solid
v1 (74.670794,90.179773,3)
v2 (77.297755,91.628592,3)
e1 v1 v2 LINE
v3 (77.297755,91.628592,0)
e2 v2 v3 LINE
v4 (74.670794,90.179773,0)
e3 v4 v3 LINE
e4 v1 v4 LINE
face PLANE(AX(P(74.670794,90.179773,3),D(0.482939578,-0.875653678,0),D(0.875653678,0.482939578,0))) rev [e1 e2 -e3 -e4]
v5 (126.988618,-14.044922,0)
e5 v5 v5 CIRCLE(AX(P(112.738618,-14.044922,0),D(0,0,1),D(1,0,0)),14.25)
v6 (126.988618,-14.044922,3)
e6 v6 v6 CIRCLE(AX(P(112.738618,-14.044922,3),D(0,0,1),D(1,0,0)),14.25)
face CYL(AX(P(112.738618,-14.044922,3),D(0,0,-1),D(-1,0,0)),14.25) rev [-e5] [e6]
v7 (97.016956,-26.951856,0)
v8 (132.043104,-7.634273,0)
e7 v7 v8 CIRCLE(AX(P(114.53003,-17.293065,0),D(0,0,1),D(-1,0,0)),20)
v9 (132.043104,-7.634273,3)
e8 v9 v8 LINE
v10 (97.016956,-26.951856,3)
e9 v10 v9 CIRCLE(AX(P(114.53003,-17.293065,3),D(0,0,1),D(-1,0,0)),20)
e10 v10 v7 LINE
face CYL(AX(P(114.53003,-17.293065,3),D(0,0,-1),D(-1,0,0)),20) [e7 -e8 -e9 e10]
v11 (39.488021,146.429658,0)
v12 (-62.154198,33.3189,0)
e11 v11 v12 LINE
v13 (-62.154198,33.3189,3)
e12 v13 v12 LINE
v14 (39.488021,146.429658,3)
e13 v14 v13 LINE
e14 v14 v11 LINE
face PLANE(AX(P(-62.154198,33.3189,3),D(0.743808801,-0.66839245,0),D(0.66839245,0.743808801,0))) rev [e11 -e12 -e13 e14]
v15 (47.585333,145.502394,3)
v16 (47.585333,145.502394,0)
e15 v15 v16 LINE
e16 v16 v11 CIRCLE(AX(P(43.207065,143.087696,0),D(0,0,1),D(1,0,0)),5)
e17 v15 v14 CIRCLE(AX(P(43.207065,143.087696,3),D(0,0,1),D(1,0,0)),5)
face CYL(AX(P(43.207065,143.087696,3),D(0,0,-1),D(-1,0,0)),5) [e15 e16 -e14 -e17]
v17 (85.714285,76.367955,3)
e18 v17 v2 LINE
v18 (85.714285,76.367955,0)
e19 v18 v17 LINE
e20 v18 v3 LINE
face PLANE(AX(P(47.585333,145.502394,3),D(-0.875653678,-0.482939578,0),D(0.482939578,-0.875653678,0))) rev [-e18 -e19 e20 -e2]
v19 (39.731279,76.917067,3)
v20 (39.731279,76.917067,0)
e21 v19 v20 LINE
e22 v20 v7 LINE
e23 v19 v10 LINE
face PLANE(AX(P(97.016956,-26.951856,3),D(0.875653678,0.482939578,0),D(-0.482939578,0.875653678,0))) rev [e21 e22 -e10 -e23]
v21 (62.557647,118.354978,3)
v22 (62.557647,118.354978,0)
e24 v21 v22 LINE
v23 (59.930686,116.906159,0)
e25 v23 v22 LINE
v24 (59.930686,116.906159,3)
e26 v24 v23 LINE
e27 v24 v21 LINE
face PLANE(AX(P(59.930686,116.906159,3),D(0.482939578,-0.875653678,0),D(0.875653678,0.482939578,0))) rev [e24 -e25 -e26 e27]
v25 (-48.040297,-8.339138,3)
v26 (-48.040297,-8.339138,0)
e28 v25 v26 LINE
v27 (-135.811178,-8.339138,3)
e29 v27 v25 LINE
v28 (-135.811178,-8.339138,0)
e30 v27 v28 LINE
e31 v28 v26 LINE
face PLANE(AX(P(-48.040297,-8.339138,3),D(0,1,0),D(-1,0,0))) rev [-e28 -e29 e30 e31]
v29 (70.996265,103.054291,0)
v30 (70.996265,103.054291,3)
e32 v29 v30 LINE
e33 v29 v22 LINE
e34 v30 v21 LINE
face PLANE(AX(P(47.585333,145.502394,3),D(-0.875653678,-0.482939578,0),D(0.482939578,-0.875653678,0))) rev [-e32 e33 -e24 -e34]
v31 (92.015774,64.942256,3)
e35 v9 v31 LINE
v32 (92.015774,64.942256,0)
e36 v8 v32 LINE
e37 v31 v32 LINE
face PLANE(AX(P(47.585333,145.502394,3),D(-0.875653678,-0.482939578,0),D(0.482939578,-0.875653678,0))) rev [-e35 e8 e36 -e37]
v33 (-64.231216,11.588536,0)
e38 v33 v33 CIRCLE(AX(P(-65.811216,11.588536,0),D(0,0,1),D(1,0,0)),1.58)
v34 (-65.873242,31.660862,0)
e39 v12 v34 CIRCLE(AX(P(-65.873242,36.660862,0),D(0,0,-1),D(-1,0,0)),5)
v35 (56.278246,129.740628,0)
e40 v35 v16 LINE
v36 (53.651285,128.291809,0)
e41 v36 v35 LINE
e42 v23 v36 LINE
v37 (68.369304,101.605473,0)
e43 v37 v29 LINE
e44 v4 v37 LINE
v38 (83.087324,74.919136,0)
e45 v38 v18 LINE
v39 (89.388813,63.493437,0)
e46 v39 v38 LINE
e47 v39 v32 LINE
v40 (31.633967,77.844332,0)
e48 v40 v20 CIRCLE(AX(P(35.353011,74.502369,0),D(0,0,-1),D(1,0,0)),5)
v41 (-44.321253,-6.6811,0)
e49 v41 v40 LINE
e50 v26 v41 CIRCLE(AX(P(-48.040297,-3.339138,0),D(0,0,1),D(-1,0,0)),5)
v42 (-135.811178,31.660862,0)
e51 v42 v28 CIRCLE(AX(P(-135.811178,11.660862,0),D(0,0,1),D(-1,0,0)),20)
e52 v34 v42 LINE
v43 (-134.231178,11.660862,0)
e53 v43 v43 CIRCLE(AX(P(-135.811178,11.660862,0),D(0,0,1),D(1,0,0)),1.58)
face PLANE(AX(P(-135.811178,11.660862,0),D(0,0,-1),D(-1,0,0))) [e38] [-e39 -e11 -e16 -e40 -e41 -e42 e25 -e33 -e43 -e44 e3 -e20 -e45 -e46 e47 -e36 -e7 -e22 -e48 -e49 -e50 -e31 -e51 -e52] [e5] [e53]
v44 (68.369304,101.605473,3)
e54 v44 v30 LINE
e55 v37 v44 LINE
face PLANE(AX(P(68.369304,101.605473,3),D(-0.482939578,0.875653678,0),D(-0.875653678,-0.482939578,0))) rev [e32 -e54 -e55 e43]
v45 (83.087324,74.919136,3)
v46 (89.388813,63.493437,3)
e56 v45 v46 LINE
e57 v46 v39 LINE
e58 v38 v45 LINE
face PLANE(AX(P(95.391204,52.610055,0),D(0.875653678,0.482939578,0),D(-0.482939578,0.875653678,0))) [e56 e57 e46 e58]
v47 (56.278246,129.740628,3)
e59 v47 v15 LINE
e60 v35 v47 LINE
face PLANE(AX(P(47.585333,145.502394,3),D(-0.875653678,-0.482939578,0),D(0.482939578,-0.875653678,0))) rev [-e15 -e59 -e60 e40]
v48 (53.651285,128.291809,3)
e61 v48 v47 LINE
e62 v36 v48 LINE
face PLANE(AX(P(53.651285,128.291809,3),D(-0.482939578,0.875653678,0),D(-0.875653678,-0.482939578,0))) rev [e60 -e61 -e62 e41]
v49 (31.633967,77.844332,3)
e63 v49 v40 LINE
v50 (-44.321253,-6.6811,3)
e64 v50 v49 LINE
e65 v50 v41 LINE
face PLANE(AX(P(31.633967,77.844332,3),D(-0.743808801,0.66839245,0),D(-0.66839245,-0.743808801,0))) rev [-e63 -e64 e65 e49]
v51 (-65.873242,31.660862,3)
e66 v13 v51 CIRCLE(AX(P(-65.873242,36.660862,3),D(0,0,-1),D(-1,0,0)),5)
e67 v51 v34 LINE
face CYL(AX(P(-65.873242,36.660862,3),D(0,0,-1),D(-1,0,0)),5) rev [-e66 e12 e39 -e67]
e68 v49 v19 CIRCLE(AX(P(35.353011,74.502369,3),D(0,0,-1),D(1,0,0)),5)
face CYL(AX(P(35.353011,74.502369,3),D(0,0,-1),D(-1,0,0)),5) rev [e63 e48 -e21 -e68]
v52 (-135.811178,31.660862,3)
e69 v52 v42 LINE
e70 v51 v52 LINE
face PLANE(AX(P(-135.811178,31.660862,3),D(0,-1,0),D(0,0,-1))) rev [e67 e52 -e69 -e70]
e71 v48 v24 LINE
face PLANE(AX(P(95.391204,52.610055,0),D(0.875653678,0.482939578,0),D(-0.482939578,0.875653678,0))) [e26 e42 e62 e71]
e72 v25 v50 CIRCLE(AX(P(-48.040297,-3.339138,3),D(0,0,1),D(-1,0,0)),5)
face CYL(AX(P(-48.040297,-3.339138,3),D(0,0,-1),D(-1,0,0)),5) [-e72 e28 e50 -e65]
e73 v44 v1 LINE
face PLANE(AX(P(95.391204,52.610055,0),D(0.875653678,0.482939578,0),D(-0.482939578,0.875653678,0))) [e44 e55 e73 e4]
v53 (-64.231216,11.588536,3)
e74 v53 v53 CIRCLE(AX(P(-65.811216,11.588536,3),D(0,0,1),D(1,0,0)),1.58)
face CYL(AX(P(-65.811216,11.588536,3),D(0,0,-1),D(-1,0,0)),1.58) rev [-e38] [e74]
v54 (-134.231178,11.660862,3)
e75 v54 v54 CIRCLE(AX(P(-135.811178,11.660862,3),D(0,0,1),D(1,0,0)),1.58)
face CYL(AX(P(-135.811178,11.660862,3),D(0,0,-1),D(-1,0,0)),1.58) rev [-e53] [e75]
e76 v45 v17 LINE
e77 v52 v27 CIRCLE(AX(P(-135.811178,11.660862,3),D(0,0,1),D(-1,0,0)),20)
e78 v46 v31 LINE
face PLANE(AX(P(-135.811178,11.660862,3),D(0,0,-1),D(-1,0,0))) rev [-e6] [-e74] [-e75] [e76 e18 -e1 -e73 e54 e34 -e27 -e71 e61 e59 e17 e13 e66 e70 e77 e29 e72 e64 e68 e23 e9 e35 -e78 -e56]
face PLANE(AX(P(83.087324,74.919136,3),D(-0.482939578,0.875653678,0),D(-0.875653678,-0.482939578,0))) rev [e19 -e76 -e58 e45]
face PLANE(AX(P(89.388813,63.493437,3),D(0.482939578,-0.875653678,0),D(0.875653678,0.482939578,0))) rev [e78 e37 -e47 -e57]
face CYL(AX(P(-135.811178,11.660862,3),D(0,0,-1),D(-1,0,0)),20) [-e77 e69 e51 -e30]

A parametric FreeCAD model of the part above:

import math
import FreeCAD as App
import Part
import Sketcher
from FreeCAD import Vector
Q = App.Units.Quantity

doc = App.newDocument("Part")
params = doc.addObject("Spreadsheet::Sheet", "Params")
for row, (alias, value) in enumerate([
    ("sketch1_radius", "20 mm"),
    ("sketch1_radius2", "5 mm"),
    ("sketch1_diameter", "28.5 mm"),
    ("sketch1_diameter2", "3.16 mm"),
    ("pad1_length", "3 mm"),
    ("sketch2_width", "3 mm"),
    ("pocket1_length", "3 mm"),
], start=1):
    params.set(f"A{row}", alias)
    params.set(f"B{row}", "=" + value)
    params.setAlias(f"B{row}", alias)

body = doc.addObject("PartDesign::Body", "Body")

sketch1 = doc.addObject("Sketcher::SketchObject", "Sketch")
body.addObject(sketch1)
sketch1.AttachmentSupport = (doc.XY_Plane, [""])
sketch1.MapMode = "FlatFace"
sketch1.addGeometry([
    Part.LineSegment(Vector(-65.873242, 31.660862, 0), Vector(-135.811178, 31.660862, 0)),
    Part.ArcOfCircle(Part.Circle(Vector(-135.811178, 11.660862, 0), Vector(0, 0, 1), 20), math.radians(90), math.radians(270)),
    Part.LineSegment(Vector(-135.811178, -8.339138, 0), Vector(-48.040297, -8.339138, 0)),
    Part.ArcOfCircle(Part.Circle(Vector(-48.040297, -3.339138, 0), Vector(0, 0, 1), 5), math.radians(-90), math.radians(-41.943114)),
    Part.LineSegment(Vector(-44.321253, -6.6811, 0), Vector(31.633967, 77.844332, 0)),
    Part.ArcOfCircle(Part.Circle(Vector(35.353011, 74.502369, 0), Vector(0, 0, 1), 5), math.radians(28.877567), math.radians(138.056886)),
    Part.LineSegment(Vector(39.731279, 76.917067, 0), Vector(97.016956, -26.951856, 0)),
    Part.ArcOfCircle(Part.Circle(Vector(114.53003, -17.293065, 0), Vector(0, 0, 1), 20), math.radians(-151.122433), math.radians(28.877567)),
    Part.LineSegment(Vector(132.043104, -7.634273, 0), Vector(47.585333, 145.502394, 0)),
    Part.ArcOfCircle(Part.Circle(Vector(43.207065, 143.087696, 0), Vector(0, 0, 1), 5), math.radians(28.877567), math.radians(138.056886)),
    Part.LineSegment(Vector(39.488021, 146.429658, 0), Vector(-62.154198, 33.3189, 0)),
    Part.ArcOfCircle(Part.Circle(Vector(-65.873242, 36.660862, 0), Vector(0, 0, 1), 5), math.radians(-90), math.radians(-41.943114)),
    Part.Circle(Vector(112.738618, -14.044922, 0), Vector(0, 0, 1), 14.25),
    Part.Circle(Vector(-65.811216, 11.588536, 0), Vector(0, 0, 1), 1.58),
    Part.Circle(Vector(-135.811178, 11.660862, 0), Vector(0, 0, 1), 1.58),
], False)
sketch1.addConstraint([
    Sketcher.Constraint("Tangent", 0, 2, 1, 1),
    Sketcher.Constraint("Tangent", 1, 2, 2, 1),
    Sketcher.Constraint("Tangent", 2, 2, 3, 1),
    Sketcher.Constraint("Tangent", 3, 2, 4, 1),
    Sketcher.Constraint("Tangent", 4, 2, 5, 2),
    Sketcher.Constraint("Tangent", 5, 1, 6, 1),
    Sketcher.Constraint("Tangent", 6, 2, 7, 1),
    Sketcher.Constraint("Tangent", 7, 2, 8, 1),
    Sketcher.Constraint("Tangent", 8, 2, 9, 1),
    Sketcher.Constraint("Tangent", 9, 2, 10, 1),
    Sketcher.Constraint("Tangent", 10, 2, 11, 2),
    Sketcher.Constraint("Tangent", 11, 1, 0, 1),
    Sketcher.Constraint("Horizontal", 0),
    Sketcher.Constraint("Horizontal", 2),
    Sketcher.Constraint("Coincident", 14, 3, 1, 3),
    Sketcher.Constraint("Equal", 3, 5),
    Sketcher.Constraint("Equal", 1, 7),
    Sketcher.Constraint("Equal", 5, 9),
    Sketcher.Constraint("Equal", 9, 11),
    Sketcher.Constraint("Equal", 13, 14),
    Sketcher.Constraint("Parallel", 6, 8),
    Sketcher.Constraint("Parallel", 4, 10),
    Sketcher.Constraint("Radius", 1, Q("20 mm")),
    Sketcher.Constraint("Radius", 3, Q("5 mm")),
    Sketcher.Constraint("Diameter", 12, Q("28.5 mm")),
    Sketcher.Constraint("Diameter", 13, Q("3.16 mm")),
    Sketcher.Constraint("DistanceX", 2, 1, 2, 2, Q("87.770882 mm")),
    Sketcher.Constraint("DistanceY", 3, 2, -1, 1, Q("6.6811 mm")),
    Sketcher.Constraint("DistanceX", 10, 2, -1, 1, Q("62.154198 mm")),
    Sketcher.Constraint("DistanceX", 4, 2, 9, 3, Q("11.573098 mm")),
    Sketcher.Constraint("DistanceX", 10, 2, 3, 3, Q("14.113902 mm")),
    Sketcher.Constraint("Distance", 10, Q("152.06967 mm")),
    Sketcher.Constraint("DistanceX", 0, 2, 0, 1, Q("69.937936 mm")),
    Sketcher.Constraint("DistanceX", -1, 1, 7, 3, Q("114.53003 mm")),
    Sketcher.Constraint("DistanceY", 12, 3, -1, 1, Q("14.044922 mm")),
    Sketcher.Constraint("DistanceX", 11, 3, 12, 3, Q("178.61186 mm")),
    Sketcher.Constraint("DistanceX", 13, 3, 3, 3, Q("17.770919 mm")),
    Sketcher.Constraint("DistanceY", 13, 3, 9, 3, Q("131.49916 mm")),
])
sketch1.setExpression("Constraints[22]", "Params.sketch1_radius")
sketch1.setExpression("Constraints[23]", "Params.sketch1_radius2")
sketch1.setExpression("Constraints[24]", "Params.sketch1_diameter")
sketch1.setExpression("Constraints[25]", "Params.sketch1_diameter2")
pad1 = doc.addObject("PartDesign::Pad", "Pad")
body.addObject(pad1)
pad1.Profile = sketch1
pad1.setExpression("Length", "Params.pad1_length")

sketch2 = doc.addObject("Sketcher::SketchObject", "Sketch001")
body.addObject(sketch2)
sketch2.Placement = App.Placement(Vector(98.018166, 54.058874, 0), App.Rotation(Vector(0, 0, -1), Vector(-0.482939578, 0.875653678, 0), Vector(0.875653678, 0.482939578, 0), "ZXY"))
sketch2.addGeometry([
    Part.LineSegment(Vector(-3, 86.428866, 0), Vector(-3, 73.426408, 0)),
    Part.LineSegment(Vector(-3, 73.426408, 0), Vector(0, 73.426408, 0)),
    Part.LineSegment(Vector(0, 73.426408, 0), Vector(0, 86.428866, 0)),
    Part.LineSegment(Vector(0, 86.428866, 0), Vector(-3, 86.428866, 0)),
    Part.LineSegment(Vector(-3, 55.952963, 0), Vector(-3, 42.904768, 0)),
    Part.LineSegment(Vector(-3, 42.904768, 0), Vector(0, 42.904768, 0)),
    Part.LineSegment(Vector(0, 42.904768, 0), Vector(0, 55.952963, 0)),
    Part.LineSegment(Vector(0, 55.952963, 0), Vector(-3, 55.952963, 0)),
    Part.LineSegment(Vector(-3, 25.47706, 0), Vector(-3, 12.428866, 0)),
    Part.LineSegment(Vector(-3, 12.428866, 0), Vector(0, 12.428866, 0)),
    Part.LineSegment(Vector(0, 12.428866, 0), Vector(0, 25.47706, 0)),
    Part.LineSegment(Vector(0, 25.47706, 0), Vector(-3, 25.47706, 0)),
], False)
sketch2.addConstraint([
    Sketcher.Constraint("Coincident", 0, 2, 1, 1),
    Sketcher.Constraint("Coincident", 1, 2, 2, 1),
    Sketcher.Constraint("Coincident", 2, 2, 3, 1),
    Sketcher.Constraint("Coincident", 3, 2, 0, 1),
    Sketcher.Constraint("Coincident", 4, 2, 5, 1),
    Sketcher.Constraint("Coincident", 5, 2, 6, 1),
    Sketcher.Constraint("Coincident", 6, 2, 7, 1),
    Sketcher.Constraint("Coincident", 7, 2, 4, 1),
    Sketcher.Constraint("Coincident", 8, 2, 9, 1),
    Sketcher.Constraint("Coincident", 9, 2, 10, 1),
    Sketcher.Constraint("Coincident", 10, 2, 11, 1),
    Sketcher.Constraint("Coincident", 11, 2, 8, 1),
    Sketcher.Constraint("Vertical", 0),
    Sketcher.Constraint("Horizontal", 1),
    Sketcher.Constraint("Vertical", 2),
    Sketcher.Constraint("Horizontal", 3),
    Sketcher.Constraint("Vertical", 4),
    Sketcher.Constraint("Horizontal", 5),
    Sketcher.Constraint("Vertical", 6),
    Sketcher.Constraint("Horizontal", 7),
    Sketcher.Constraint("Vertical", 8),
    Sketcher.Constraint("Horizontal", 9),
    Sketcher.Constraint("Vertical", 10),
    Sketcher.Constraint("Horizontal", 11),
    Sketcher.Constraint("PointOnObject", 1, 2, -2),
    Sketcher.Constraint("PointOnObject", 5, 2, -2),
    Sketcher.Constraint("PointOnObject", 9, 2, -2),
    Sketcher.Constraint("Vertical", 3, 2, 4, 2),
    Sketcher.Constraint("Vertical", 7, 2, 8, 2),
    Sketcher.Constraint("Equal", 6, 8),
    Sketcher.Constraint("DistanceX", 1, 1, 1, 2, Q("3 mm")),
    Sketcher.Constraint("DistanceY", 0, 2, 0, 1, Q("13.002458 mm")),
    Sketcher.Constraint("DistanceY", 4, 2, 4, 1, Q("13.048194 mm")),
    Sketcher.Constraint("DistanceY", -1, 1, 4, 2, Q("42.904768 mm")),
    Sketcher.Constraint("DistanceY", -1, 1, 10, 2, Q("25.47706 mm")),
    Sketcher.Constraint("DistanceY", 4, 2, 0, 2, Q("30.521639 mm")),
])
sketch2.setExpression("Constraints[30]", "Params.sketch2_width")
pocket1 = doc.addObject("PartDesign::Pocket", "Pocket")
body.addObject(pocket1)
pocket1.Profile = sketch2
pocket1.setExpression("Length", "Params.pocket1_length")

doc.recompute()
